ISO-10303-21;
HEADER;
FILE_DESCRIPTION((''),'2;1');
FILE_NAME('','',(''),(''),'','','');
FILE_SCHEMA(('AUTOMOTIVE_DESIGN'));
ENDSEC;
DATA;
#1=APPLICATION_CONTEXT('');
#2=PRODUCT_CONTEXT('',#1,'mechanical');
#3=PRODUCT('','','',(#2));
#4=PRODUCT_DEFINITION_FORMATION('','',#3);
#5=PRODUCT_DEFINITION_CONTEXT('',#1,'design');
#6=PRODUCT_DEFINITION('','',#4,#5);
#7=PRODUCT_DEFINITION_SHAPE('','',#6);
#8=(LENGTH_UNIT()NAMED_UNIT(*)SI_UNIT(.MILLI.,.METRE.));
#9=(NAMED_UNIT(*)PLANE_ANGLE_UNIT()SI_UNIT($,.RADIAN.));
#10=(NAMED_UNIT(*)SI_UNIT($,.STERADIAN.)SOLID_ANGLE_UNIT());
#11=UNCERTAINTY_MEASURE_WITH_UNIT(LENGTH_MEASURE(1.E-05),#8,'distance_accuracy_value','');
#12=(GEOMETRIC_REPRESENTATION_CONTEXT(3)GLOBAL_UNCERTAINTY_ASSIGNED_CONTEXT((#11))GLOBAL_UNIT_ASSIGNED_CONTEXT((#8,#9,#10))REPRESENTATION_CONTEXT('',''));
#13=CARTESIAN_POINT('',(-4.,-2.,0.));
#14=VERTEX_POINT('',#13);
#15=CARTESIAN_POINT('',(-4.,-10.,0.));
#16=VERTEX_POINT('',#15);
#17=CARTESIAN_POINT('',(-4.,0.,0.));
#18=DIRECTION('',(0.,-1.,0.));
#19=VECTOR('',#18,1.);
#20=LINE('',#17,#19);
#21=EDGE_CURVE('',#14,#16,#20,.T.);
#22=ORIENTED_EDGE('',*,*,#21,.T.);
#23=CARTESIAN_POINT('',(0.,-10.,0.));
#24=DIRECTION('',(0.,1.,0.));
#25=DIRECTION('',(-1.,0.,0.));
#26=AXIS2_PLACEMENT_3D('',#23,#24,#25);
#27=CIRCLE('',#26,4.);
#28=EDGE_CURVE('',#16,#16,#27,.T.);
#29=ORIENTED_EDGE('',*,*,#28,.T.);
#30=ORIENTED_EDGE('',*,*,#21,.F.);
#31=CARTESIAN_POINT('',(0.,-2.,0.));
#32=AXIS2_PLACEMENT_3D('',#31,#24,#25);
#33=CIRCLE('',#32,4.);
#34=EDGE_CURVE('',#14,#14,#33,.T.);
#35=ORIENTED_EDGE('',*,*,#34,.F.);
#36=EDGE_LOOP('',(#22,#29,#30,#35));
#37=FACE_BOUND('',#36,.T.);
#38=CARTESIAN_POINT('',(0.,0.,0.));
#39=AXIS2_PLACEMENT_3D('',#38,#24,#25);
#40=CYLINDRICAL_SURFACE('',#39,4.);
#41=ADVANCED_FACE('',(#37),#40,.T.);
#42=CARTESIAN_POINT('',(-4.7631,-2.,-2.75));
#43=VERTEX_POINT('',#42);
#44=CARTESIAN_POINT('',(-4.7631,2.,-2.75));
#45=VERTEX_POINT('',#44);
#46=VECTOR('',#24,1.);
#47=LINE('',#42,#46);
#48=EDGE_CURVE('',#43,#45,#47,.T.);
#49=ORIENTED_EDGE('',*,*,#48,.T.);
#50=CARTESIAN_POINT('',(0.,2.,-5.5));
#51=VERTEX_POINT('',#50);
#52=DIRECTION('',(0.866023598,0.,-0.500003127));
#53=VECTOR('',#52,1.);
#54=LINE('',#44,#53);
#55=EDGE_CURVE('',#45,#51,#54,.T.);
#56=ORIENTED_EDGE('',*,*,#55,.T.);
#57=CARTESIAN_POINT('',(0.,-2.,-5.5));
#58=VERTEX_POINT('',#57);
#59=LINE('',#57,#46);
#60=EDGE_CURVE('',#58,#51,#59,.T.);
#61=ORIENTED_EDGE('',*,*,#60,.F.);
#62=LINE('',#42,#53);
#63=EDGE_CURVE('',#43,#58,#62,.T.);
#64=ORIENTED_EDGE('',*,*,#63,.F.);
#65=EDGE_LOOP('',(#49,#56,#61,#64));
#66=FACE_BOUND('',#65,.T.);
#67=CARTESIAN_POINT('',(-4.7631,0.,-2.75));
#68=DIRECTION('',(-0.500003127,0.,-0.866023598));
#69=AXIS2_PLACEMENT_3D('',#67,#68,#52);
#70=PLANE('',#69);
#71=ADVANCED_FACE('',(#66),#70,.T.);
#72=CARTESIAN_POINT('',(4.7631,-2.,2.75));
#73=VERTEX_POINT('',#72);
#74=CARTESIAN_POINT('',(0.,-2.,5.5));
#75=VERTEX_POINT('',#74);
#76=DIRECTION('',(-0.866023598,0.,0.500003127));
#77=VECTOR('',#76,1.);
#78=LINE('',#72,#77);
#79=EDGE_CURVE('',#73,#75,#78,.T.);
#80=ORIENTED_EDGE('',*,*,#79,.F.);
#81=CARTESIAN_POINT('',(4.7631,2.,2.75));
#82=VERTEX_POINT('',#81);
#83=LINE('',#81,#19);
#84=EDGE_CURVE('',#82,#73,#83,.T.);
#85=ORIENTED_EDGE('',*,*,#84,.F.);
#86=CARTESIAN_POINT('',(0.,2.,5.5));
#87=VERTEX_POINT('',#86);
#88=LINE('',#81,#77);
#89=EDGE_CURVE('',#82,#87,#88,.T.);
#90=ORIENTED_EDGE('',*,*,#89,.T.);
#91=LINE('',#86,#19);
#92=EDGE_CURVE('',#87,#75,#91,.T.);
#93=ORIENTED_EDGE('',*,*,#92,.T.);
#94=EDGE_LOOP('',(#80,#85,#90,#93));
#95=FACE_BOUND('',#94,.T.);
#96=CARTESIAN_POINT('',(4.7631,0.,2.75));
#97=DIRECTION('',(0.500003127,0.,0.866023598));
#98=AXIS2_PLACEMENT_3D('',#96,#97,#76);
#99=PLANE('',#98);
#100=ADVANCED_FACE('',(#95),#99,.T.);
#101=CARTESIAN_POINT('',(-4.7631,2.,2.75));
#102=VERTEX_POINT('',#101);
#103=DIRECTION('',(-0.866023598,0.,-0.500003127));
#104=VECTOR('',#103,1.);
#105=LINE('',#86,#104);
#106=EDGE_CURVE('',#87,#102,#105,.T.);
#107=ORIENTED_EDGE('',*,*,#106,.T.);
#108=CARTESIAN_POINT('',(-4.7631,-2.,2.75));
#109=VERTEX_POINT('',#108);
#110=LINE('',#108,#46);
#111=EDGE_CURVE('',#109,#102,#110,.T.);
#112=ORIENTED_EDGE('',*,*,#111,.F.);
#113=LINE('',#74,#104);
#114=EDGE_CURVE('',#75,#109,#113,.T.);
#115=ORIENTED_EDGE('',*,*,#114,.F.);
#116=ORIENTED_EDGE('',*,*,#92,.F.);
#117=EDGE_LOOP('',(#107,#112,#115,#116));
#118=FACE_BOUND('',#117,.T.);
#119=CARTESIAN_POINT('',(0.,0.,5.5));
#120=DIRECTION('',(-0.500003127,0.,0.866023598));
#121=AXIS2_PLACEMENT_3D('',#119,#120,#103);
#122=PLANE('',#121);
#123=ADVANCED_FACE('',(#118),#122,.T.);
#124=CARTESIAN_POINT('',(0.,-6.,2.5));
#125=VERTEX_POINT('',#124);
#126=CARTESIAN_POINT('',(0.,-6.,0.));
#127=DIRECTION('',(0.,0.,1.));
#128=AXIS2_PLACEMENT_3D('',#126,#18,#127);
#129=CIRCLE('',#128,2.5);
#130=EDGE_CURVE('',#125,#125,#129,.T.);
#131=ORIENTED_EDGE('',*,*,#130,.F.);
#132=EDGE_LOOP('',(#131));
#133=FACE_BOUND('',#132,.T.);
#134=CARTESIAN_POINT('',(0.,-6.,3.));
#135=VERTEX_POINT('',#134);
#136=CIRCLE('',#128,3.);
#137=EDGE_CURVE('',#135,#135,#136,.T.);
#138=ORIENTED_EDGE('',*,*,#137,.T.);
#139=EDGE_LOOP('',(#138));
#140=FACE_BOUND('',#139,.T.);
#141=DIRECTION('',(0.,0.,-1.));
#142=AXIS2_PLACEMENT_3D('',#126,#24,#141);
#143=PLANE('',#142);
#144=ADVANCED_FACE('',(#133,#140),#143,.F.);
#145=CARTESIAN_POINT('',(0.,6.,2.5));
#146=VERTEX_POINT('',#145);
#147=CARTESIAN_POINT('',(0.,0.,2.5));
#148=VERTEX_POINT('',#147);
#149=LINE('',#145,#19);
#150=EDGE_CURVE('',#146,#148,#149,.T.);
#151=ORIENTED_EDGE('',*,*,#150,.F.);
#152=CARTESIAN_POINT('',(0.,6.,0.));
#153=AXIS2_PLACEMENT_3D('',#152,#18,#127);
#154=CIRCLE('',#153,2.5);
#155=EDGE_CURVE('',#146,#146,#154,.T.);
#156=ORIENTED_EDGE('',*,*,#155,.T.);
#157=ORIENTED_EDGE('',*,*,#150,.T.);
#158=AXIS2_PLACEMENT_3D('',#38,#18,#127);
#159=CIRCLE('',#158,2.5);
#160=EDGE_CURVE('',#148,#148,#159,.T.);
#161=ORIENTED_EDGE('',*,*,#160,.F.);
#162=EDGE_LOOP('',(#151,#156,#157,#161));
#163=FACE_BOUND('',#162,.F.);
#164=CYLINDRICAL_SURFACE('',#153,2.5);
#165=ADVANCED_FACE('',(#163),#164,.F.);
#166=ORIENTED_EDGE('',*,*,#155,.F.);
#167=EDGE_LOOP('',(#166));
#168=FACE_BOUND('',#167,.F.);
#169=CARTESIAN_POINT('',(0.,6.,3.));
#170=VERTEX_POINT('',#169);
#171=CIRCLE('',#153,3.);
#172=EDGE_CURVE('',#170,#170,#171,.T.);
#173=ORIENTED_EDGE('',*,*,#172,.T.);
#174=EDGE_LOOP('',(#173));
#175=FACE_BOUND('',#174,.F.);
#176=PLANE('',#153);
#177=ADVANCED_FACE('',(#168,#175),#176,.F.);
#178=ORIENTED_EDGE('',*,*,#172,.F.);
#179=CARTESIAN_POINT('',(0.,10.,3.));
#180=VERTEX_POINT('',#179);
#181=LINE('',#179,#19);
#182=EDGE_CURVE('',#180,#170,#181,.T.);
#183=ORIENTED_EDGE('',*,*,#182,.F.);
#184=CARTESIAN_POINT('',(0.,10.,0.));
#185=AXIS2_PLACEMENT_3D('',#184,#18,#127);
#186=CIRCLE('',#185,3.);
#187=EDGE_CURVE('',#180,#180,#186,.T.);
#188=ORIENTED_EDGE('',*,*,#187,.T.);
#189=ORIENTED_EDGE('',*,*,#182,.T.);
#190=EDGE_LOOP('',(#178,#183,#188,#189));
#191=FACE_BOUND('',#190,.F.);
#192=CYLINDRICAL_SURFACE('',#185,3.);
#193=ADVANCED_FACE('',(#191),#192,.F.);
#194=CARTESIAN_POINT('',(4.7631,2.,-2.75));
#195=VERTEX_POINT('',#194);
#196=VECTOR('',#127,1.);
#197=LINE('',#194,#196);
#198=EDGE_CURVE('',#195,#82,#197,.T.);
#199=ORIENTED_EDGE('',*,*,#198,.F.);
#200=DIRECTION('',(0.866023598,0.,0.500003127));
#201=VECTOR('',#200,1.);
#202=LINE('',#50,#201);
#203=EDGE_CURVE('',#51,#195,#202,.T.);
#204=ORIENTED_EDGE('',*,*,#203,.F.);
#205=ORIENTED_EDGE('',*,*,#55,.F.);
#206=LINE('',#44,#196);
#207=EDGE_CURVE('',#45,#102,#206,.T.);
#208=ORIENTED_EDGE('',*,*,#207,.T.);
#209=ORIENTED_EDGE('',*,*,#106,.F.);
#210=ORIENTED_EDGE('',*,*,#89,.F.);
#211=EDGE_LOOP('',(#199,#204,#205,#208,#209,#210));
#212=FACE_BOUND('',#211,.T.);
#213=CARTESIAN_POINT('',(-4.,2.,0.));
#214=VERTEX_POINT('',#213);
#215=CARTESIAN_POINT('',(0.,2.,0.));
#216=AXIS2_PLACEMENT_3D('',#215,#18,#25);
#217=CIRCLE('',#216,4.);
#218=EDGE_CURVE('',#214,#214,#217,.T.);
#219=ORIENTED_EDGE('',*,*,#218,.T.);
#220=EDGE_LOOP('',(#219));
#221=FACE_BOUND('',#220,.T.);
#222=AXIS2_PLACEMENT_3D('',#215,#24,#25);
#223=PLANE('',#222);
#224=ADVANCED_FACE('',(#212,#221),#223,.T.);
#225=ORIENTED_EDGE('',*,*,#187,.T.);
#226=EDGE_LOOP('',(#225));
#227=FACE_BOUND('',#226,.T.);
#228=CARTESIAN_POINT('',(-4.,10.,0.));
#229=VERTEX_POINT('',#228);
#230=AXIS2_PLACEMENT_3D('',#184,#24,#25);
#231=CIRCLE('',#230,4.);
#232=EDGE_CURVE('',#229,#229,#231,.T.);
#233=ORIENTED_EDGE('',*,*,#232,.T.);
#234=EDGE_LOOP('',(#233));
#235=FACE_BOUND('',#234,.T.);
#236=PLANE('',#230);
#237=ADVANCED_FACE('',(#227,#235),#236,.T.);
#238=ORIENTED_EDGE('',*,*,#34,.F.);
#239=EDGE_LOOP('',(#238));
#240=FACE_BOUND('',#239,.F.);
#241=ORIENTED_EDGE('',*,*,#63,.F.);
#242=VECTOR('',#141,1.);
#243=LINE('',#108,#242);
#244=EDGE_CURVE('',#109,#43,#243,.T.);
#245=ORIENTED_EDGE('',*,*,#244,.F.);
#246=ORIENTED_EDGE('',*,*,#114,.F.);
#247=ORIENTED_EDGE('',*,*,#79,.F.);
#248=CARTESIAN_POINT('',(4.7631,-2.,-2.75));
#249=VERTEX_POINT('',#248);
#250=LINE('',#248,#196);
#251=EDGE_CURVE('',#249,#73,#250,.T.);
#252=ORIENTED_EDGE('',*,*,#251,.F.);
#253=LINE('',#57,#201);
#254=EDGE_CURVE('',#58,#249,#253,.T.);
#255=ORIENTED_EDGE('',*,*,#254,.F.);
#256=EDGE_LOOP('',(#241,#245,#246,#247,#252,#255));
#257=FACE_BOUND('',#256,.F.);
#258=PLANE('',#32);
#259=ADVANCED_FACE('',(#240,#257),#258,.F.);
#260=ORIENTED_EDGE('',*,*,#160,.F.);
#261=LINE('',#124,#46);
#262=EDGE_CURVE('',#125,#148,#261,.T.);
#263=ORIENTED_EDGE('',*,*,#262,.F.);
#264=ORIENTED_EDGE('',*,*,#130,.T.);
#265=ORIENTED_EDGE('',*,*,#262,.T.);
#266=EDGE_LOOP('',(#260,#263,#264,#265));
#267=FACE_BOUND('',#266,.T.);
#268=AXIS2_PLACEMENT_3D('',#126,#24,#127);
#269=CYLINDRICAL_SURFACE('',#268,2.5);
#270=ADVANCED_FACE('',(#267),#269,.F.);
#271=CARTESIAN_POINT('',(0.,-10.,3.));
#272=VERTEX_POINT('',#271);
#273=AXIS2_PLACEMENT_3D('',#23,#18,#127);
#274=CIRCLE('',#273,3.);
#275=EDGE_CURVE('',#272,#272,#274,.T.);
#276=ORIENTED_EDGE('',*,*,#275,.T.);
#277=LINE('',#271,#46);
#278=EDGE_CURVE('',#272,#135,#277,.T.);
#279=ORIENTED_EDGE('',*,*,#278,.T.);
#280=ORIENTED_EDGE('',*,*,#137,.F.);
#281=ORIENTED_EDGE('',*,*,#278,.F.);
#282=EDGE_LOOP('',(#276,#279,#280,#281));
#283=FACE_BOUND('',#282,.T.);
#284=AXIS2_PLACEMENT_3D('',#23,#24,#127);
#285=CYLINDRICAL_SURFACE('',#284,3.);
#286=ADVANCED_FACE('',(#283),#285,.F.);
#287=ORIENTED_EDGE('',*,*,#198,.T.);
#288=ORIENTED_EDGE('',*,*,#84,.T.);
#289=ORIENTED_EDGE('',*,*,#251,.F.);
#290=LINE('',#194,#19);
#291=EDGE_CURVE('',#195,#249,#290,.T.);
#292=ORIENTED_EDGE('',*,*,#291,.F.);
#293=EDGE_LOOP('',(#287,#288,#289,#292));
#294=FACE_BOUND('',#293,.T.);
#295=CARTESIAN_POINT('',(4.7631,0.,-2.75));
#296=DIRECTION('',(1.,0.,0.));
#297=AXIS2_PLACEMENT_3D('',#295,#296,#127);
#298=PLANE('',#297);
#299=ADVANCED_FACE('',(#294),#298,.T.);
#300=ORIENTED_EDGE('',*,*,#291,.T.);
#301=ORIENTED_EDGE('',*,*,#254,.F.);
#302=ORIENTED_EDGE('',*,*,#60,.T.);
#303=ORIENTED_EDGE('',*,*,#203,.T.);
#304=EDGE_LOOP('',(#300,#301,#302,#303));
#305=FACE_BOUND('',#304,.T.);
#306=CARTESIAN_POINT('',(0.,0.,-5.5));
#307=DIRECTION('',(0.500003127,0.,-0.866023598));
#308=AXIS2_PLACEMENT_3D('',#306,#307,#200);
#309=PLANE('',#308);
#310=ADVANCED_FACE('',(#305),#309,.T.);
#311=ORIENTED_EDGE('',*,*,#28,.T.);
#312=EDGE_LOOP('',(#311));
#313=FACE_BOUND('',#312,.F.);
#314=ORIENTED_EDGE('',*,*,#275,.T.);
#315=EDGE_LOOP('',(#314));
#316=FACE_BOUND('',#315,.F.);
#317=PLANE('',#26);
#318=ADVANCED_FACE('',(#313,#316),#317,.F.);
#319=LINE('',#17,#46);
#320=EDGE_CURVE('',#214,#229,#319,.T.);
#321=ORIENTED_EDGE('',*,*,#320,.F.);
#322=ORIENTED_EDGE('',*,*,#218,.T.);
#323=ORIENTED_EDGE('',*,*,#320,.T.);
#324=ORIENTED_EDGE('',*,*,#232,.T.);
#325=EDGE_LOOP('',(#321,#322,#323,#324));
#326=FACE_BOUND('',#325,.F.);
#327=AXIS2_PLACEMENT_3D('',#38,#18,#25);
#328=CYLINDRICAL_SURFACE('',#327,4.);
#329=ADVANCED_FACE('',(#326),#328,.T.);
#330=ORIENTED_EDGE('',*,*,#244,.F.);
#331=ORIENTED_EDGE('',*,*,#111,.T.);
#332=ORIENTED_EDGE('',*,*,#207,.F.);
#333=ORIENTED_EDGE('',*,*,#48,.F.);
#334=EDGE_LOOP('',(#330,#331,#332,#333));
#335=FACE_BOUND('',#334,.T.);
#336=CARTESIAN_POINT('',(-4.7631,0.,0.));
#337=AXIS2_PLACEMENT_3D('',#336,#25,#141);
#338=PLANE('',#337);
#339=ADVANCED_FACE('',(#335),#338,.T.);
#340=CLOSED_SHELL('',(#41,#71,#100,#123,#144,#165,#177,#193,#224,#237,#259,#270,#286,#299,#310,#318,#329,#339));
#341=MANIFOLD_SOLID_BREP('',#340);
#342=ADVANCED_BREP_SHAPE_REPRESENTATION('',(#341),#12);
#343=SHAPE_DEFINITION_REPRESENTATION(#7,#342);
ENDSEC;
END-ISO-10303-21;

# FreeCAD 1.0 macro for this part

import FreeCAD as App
import Part
import Sketcher
from FreeCAD import Vector


def add_polygon(sketch, points):
    """Adds a closed chain of lines whose ends are joined by coincident constraints."""
    first, n = sketch.GeometryCount, len(points)
    for a, b in zip(points, points[1:] + points[:1]):
        sketch.addGeometry(Part.LineSegment(App.Vector(*a, 0), App.Vector(*b, 0)), False)
    for i in range(n):
        sketch.addConstraint(Sketcher.Constraint("Coincident", first + i, 2, first + (i + 1) % n, 1))

doc = App.newDocument("Part")
body = doc.addObject("PartDesign::Body", "Body")

# Sketch on XZ plane
sketch1 = body.newObject("Sketcher::SketchObject", "Sketch")
sketch1.AttachmentSupport = (doc.getObject("XZ_Plane"), [""])
sketch1.MapMode = "FlatFace"
add_polygon(sketch1, [(5, -3), (0, -6), (-5, -3), (-5, 3), (0, 6), (5, 3)])  # lines 0-5
sketch1.addConstraint([
    Sketcher.Constraint("Vertical", 2),
    Sketcher.Constraint("Vertical", 5),
    Sketcher.Constraint("Symmetric", 0, 2, 3, 2, -1, 1),
    Sketcher.Constraint("Symmetric", 1, 2, 4, 2, -1, 1),
    Sketcher.Constraint("PointOnObject", 0, 2, -2),
    Sketcher.Constraint("Parallel", 0, 3),
    Sketcher.Constraint("Horizontal", 2, 2, 4, 2),
    Sketcher.Constraint("DistanceY", 2, 1, 2, 2, 5.5),
    Sketcher.Constraint("Distance", 0, 5.5),
    Sketcher.Constraint("DistanceY", 0, 2, -1, 1, 5.5),
])
pad1 = body.newObject("PartDesign::Pad", "Pad")
pad1.Profile = sketch1
pad1.Length = 4
pad1.Midplane = True

# Sketch on XZ plane
sketch2 = body.newObject("Sketcher::SketchObject", "Sketch001")
sketch2.AttachmentSupport = (doc.getObject("XZ_Plane"), [""])
sketch2.MapMode = "FlatFace"
sketch2.addGeometry(Part.Circle(Vector(0, 0, 0), Vector(0, 0, 1), 4), False)
sketch2.addConstraint([
    Sketcher.Constraint("Coincident", 0, 3, -1, 1),
    Sketcher.Constraint("Diameter", 0, 8.0),
])
pad2 = body.newObject("PartDesign::Pad", "Pad001")
pad2.Profile = sketch2
pad2.Length = 20
pad2.Midplane = True

# Sketch on XZ plane
sketch3 = body.newObject("Sketcher::SketchObject", "Sketch002")
sketch3.AttachmentSupport = (doc.getObject("XZ_Plane"), [""])
sketch3.MapMode = "FlatFace"
sketch3.AttachmentOffset = App.Placement(Vector(0, 0, -10), App.Rotation())
sketch3.addGeometry(Part.Circle(Vector(0, 0, 0), Vector(0, 0, 1), 2.5), False)
sketch3.addConstraint([
    Sketcher.Constraint("Coincident", 0, 3, -1, 1),
    Sketcher.Constraint("Diameter", 0, 5.0),
])
doc.recompute()
hole = body.newObject("PartDesign::Hole", "Hole")
hole.Profile = sketch3
hole.ThreadType = "None"
hole.Diameter = 5
hole.DepthType = "Dimension"
hole.Depth = 10
hole.DrillPoint = "Angled"
hole.DrillPointAngle = 118
hole.HoleCutType = "Counterbore"
hole.HoleCutDiameter = 6
hole.HoleCutDepth = 4
hole.Reversed = True
doc.recompute()

mirrored = body.newObject("PartDesign::Mirrored", "Mirrored")
mirrored.Originals = [hole]
mirrored.MirrorPlane = (doc.getObject("XZ_Plane"), [""])
body.Tip = mirrored

doc.recompute()
